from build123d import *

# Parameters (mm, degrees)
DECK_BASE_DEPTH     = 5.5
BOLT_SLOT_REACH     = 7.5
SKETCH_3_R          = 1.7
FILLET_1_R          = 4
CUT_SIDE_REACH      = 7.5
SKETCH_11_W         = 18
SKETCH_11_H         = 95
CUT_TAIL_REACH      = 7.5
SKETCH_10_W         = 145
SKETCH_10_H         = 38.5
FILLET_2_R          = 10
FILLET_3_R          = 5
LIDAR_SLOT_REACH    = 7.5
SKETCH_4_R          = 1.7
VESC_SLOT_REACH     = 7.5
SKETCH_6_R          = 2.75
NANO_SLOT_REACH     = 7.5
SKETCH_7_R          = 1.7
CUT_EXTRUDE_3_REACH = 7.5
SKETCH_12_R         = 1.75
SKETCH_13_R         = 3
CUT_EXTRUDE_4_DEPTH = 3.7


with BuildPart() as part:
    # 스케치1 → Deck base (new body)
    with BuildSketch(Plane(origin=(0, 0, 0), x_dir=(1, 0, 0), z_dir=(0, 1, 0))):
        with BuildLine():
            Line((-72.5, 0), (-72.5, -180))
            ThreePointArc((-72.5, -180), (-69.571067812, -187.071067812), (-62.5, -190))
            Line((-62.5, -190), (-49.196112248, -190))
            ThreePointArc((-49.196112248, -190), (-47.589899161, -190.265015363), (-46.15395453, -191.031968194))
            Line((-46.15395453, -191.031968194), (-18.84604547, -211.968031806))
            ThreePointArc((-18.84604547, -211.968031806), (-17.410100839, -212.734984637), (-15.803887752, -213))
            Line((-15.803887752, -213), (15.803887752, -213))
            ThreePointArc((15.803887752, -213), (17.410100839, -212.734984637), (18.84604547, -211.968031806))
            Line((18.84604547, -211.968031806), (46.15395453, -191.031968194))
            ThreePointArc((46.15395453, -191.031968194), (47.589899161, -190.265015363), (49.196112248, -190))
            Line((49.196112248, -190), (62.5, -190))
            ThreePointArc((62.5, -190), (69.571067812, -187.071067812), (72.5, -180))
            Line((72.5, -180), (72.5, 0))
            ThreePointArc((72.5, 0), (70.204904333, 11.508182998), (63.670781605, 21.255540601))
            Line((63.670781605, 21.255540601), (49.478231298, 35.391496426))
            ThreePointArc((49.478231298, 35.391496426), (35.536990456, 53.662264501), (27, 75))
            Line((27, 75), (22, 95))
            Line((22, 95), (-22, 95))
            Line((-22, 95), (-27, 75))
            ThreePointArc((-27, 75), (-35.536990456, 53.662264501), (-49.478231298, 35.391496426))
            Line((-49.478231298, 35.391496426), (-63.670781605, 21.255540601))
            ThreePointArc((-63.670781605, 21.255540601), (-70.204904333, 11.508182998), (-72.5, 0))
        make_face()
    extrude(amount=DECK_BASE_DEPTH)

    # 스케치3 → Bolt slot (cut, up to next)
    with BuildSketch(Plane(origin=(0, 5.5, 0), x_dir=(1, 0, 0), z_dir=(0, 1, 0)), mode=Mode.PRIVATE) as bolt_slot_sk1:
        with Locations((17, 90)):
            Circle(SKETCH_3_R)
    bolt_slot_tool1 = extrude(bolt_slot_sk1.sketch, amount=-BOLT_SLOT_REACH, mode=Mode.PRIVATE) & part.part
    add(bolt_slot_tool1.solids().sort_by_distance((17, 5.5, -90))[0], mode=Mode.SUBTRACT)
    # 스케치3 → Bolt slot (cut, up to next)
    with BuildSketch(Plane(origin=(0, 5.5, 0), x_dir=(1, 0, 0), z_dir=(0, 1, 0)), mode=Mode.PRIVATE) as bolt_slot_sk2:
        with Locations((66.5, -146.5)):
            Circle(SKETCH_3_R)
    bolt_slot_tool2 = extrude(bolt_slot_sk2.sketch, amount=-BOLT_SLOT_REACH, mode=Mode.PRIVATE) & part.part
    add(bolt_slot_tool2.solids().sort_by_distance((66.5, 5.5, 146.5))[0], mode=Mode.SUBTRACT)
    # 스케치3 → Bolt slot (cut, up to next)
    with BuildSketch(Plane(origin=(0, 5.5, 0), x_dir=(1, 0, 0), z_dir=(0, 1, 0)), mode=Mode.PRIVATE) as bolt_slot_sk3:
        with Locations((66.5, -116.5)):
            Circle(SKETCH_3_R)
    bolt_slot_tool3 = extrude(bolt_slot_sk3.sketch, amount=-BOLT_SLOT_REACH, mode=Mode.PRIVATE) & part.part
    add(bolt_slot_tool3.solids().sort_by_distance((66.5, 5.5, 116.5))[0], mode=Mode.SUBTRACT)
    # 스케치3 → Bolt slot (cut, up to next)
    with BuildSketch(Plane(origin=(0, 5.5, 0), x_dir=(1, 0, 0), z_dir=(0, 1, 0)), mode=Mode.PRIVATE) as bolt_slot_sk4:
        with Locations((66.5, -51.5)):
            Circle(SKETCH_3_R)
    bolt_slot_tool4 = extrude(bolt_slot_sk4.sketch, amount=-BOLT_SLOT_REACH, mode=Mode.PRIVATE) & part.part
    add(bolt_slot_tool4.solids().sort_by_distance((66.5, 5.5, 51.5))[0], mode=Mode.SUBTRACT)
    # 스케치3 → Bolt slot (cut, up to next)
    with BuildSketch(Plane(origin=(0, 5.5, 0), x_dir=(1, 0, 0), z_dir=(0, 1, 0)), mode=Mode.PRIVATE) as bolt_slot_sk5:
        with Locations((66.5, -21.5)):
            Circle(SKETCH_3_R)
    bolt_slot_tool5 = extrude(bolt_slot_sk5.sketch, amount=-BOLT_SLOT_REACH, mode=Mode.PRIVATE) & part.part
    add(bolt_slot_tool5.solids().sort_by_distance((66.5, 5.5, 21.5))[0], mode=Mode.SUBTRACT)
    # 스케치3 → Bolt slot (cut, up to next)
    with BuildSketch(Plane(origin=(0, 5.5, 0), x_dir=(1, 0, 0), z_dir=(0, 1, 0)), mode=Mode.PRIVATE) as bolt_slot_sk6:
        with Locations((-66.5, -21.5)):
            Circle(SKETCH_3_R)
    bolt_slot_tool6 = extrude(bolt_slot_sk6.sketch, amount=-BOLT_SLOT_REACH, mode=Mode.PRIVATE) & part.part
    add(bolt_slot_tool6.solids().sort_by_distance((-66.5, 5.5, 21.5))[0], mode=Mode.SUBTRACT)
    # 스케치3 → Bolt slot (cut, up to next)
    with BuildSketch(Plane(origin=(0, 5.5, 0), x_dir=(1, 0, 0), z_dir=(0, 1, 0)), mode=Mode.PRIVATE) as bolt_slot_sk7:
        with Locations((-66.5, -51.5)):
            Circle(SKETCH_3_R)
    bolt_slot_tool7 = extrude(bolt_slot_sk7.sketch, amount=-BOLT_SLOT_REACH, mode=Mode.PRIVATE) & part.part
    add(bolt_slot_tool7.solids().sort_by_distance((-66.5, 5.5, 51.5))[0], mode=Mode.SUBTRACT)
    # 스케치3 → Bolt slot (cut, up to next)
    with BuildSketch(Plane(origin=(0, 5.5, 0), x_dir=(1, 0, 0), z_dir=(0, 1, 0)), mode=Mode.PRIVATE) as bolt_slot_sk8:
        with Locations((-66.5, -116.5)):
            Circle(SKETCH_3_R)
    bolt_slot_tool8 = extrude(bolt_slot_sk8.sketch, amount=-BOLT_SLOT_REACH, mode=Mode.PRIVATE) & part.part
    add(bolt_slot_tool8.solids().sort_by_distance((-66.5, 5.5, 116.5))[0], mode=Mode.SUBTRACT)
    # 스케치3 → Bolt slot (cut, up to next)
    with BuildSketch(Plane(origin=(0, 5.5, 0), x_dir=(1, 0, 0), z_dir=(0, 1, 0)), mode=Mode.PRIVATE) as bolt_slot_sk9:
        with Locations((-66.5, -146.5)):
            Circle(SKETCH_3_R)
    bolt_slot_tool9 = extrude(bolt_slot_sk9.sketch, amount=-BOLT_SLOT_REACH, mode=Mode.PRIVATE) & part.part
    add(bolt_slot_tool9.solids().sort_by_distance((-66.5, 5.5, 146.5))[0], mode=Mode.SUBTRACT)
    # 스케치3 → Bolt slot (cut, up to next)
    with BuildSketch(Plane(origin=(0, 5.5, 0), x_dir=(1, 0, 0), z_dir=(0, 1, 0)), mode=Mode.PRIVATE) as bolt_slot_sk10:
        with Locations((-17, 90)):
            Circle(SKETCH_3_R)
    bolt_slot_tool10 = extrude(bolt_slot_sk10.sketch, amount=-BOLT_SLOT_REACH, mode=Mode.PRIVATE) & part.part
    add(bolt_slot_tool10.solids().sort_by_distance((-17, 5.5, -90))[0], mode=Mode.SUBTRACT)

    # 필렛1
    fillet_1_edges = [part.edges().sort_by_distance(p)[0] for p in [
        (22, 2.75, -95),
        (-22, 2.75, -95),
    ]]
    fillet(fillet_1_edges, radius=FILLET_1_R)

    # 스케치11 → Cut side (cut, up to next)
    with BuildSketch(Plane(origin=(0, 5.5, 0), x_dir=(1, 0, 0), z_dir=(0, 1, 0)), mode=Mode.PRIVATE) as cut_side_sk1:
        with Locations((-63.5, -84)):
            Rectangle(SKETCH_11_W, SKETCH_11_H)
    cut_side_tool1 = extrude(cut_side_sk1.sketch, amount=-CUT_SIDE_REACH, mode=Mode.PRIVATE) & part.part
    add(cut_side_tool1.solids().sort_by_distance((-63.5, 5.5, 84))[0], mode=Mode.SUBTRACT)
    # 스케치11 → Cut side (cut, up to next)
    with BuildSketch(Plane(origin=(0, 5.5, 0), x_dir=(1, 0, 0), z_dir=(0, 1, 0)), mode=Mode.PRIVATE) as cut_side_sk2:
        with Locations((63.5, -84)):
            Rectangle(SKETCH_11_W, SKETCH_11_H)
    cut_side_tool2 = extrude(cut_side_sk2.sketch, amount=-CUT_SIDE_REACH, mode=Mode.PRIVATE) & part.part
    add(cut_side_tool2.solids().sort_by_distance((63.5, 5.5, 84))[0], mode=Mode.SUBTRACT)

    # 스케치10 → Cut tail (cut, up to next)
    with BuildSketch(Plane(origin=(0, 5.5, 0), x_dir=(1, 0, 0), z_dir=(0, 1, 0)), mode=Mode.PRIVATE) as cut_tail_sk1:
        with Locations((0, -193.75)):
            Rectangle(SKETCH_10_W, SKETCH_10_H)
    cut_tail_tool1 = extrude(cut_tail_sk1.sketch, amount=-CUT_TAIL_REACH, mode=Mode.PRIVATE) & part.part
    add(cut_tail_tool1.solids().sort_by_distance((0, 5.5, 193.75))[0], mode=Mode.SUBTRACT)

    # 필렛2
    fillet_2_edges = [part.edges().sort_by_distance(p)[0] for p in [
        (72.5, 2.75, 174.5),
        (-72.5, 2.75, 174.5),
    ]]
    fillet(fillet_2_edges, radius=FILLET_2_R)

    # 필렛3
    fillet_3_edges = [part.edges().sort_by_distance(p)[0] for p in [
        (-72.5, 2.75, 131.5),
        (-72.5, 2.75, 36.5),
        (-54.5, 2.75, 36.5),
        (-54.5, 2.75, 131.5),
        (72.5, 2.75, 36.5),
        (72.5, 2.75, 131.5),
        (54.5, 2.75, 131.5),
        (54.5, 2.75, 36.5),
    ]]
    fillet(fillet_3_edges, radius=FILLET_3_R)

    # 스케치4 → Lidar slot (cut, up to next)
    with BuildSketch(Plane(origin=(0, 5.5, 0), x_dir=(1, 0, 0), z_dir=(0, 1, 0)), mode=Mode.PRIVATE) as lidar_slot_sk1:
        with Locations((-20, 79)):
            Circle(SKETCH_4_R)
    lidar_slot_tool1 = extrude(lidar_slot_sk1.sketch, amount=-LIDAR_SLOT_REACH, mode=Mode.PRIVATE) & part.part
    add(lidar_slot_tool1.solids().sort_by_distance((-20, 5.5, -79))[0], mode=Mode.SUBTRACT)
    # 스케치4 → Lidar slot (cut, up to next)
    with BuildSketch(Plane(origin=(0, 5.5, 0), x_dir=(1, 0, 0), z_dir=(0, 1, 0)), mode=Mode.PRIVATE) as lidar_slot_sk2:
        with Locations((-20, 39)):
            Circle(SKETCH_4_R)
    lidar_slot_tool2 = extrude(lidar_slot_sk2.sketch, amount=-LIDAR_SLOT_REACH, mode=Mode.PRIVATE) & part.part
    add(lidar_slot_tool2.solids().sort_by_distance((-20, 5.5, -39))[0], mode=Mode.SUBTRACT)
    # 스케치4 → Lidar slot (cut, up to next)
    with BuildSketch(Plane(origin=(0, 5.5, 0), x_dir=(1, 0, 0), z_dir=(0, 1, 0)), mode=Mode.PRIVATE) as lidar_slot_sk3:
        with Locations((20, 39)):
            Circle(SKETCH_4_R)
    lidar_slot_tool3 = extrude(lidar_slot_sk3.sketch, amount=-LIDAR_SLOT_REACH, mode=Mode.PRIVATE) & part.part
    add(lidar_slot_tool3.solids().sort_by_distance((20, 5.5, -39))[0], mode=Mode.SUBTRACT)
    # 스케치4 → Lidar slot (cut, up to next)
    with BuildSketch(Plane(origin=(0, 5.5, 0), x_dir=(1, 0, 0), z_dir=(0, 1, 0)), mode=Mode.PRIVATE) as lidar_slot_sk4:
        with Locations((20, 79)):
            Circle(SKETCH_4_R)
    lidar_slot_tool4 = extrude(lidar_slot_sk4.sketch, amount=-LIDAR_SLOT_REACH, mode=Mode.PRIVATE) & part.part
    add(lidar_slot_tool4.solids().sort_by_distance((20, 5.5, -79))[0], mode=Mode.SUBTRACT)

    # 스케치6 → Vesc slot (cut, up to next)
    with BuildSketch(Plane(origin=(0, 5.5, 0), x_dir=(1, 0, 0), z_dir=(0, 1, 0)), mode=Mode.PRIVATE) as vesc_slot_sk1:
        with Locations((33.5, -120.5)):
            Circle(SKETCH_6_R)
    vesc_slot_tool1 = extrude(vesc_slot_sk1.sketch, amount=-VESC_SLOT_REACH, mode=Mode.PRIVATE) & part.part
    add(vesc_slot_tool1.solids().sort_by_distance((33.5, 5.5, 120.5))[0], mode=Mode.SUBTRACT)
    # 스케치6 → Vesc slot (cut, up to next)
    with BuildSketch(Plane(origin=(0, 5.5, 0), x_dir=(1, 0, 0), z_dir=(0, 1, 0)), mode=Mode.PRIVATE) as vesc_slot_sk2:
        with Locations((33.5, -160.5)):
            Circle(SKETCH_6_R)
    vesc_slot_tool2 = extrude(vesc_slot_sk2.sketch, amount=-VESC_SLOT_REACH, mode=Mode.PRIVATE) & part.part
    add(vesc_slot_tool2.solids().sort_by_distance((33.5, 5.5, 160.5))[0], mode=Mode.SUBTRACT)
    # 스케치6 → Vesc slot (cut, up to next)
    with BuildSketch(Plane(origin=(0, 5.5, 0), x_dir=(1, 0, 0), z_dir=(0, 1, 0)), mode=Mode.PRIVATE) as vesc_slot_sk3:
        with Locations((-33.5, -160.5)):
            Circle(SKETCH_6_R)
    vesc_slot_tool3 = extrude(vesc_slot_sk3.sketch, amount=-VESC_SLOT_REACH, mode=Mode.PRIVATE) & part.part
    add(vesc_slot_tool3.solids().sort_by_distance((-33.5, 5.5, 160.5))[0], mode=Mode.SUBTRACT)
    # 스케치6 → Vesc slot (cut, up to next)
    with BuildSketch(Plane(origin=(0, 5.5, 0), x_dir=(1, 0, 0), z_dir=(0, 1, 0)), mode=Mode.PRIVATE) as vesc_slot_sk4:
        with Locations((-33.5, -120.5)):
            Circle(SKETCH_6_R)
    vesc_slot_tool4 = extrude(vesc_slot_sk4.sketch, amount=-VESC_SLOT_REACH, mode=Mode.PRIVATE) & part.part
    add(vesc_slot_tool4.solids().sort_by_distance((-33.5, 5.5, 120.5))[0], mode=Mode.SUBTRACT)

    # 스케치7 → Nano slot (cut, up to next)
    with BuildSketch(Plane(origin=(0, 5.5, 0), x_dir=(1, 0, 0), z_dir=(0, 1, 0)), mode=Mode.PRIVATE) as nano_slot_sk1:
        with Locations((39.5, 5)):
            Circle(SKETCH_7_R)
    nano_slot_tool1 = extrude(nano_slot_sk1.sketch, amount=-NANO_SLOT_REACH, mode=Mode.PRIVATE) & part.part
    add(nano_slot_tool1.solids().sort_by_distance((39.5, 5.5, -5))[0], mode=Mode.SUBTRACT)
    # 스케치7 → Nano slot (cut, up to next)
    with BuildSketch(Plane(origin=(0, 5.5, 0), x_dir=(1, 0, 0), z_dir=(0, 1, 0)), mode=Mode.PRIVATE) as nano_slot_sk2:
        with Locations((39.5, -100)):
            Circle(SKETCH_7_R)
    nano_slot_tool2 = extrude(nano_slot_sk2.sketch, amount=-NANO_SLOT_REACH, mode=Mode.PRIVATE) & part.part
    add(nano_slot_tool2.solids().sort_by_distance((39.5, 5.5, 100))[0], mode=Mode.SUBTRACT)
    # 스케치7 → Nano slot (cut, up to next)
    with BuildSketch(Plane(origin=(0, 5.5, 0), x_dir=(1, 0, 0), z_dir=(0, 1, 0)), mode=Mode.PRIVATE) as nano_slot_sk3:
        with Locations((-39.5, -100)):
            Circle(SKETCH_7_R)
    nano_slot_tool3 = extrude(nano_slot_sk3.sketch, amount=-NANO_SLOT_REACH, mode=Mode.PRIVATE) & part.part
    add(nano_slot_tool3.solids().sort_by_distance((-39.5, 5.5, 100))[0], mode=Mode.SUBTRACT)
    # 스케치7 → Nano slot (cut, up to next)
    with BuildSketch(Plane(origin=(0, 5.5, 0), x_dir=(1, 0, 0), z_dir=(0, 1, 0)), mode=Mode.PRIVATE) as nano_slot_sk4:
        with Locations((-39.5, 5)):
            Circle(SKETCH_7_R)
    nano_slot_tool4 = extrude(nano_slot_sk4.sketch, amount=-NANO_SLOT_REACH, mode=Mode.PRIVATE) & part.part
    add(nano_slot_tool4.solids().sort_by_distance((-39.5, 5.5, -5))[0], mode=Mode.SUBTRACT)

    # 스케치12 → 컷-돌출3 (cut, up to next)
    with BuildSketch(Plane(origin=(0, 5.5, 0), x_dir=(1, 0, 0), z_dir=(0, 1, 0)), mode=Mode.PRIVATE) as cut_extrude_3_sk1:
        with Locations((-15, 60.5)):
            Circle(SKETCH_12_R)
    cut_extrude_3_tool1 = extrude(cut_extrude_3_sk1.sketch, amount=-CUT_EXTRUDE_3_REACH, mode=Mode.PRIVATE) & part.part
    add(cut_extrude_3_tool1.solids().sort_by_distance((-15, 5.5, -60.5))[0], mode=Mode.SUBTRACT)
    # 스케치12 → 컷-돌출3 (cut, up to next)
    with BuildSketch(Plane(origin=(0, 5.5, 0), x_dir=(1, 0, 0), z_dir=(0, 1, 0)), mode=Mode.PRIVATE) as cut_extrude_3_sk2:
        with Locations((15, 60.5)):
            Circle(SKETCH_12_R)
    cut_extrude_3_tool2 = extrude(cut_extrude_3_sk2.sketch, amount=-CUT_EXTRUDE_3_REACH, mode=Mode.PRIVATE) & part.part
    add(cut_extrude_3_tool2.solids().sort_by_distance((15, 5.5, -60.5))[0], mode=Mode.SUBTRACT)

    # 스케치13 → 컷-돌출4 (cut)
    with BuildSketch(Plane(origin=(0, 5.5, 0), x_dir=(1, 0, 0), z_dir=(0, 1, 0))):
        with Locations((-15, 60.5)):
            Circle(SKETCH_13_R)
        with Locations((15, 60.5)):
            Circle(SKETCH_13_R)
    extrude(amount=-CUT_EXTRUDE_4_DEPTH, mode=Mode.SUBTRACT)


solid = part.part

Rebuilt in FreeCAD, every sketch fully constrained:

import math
import FreeCAD as App
import Part
import Sketcher

V = App.Vector
Q = App.Units.Quantity


def edges_at(feature, points):
    """Names of the edges that pass closest to the given points."""
    edges = feature.Shape.Edges
    near = lambda p: min(range(len(edges)), key=lambda i: edges[i].distToShape(Part.Vertex(*p))[0])
    return sorted({f"Edge{near(p) + 1}" for p in points})


def add_polygon(sketch, points):
    """Adds a closed chain of lines whose ends are joined by coincident constraints."""
    first, n = sketch.GeometryCount, len(points)
    for a, b in zip(points, points[1:] + points[:1]):
        sketch.addGeometry(Part.LineSegment(App.Vector(*a, 0), App.Vector(*b, 0)), False)
    for i in range(n):
        sketch.addConstraint(Sketcher.Constraint("Coincident", first + i, 2, first + (i + 1) % n, 1))

doc = App.newDocument("Part")
body = doc.addObject("PartDesign::Body", "Body")

sketch1 = body.newObject("Sketcher::SketchObject", "Sketch")
sketch1.AttachmentSupport = (doc.getObject("XZ_Plane"), [""])
sketch1.MapMode = "FlatFace"
sketch1.addGeometry([
    Part.LineSegment(V(-72.5, 0, 0), V(-72.5, 180, 0)),
    Part.ArcOfCircle(Part.Circle(V(-62.5, 180, 0), V(0, 0, 1), 10), math.radians(90), math.radians(180)),
    Part.LineSegment(V(-62.5, 190, 0), V(-49.2, 190, 0)),
    Part.ArcOfCircle(Part.Circle(V(-49.2, 195, 0), V(0, 0, 1), 5), math.radians(-90), math.radians(-53)),
    Part.LineSegment(V(-46.2, 191, 0), V(-18.8, 212, 0)),
    Part.ArcOfCircle(Part.Circle(V(-15.8, 208, 0), V(0, 0, 1), 5), math.radians(90), math.radians(127)),
    Part.LineSegment(V(-15.8, 213, 0), V(15.8, 213, 0)),
    Part.ArcOfCircle(Part.Circle(V(15.8, 208, 0), V(0, 0, 1), 5), math.radians(53), math.radians(90)),
    Part.LineSegment(V(18.8, 212, 0), V(46.2, 191, 0)),
    Part.ArcOfCircle(Part.Circle(V(49.2, 195, 0), V(0, 0, 1), 5), math.radians(-127), math.radians(-90)),
    Part.LineSegment(V(49.2, 190, 0), V(62.5, 190, 0)),
    Part.ArcOfCircle(Part.Circle(V(62.5, 180, 0), V(0, 0, 1), 10), math.radians(0), math.radians(90)),
    Part.LineSegment(V(72.5, 180, 0), V(72.5, 0, 0)),
    Part.ArcOfCircle(Part.Circle(V(42.5, 0, 0), V(0, 0, 1), 30), math.radians(-45), math.radians(0)),
    Part.LineSegment(V(63.7, -21.3, 0), V(49.5, -35.4, 0)),
    Part.ArcOfCircle(Part.Circle(V(109.5, -95.6, 0), V(0, 0, 1), 85), math.radians(135), math.radians(166)),
    Part.LineSegment(V(27, -75, 0), V(22, -95, 0)),
    Part.LineSegment(V(22, -95, 0), V(-22, -95, 0)),
    Part.LineSegment(V(-22, -95, 0), V(-27, -75, 0)),
    Part.ArcOfCircle(Part.Circle(V(-109.5, -95.6, 0), V(0, 0, 1), 85), math.radians(14), math.radians(45)),
    Part.LineSegment(V(-49.5, -35.4, 0), V(-63.7, -21.3, 0)),
    Part.ArcOfCircle(Part.Circle(V(-42.5, 0, 0), V(0, 0, 1), 30), math.radians(180), math.radians(225)),
], False)
sketch1.addConstraint([
    Sketcher.Constraint("Tangent", 0, 2, 1, 2),
    Sketcher.Constraint("Tangent", 1, 1, 2, 1),
    Sketcher.Constraint("Tangent", 2, 2, 3, 1),
    Sketcher.Constraint("Tangent", 3, 2, 4, 1),
    Sketcher.Constraint("Tangent", 4, 2, 5, 2),
    Sketcher.Constraint("Tangent", 5, 1, 6, 1),
    Sketcher.Constraint("Tangent", 6, 2, 7, 2),
    Sketcher.Constraint("Tangent", 7, 1, 8, 1),
    Sketcher.Constraint("Tangent", 8, 2, 9, 1),
    Sketcher.Constraint("Tangent", 9, 2, 10, 1),
    Sketcher.Constraint("Tangent", 10, 2, 11, 2),
    Sketcher.Constraint("Tangent", 11, 1, 12, 1),
    Sketcher.Constraint("Tangent", 12, 2, 13, 2),
    Sketcher.Constraint("Tangent", 13, 1, 14, 1),
    Sketcher.Constraint("Tangent", 14, 2, 15, 1),
    Sketcher.Constraint("Tangent", 15, 2, 16, 1),
    Sketcher.Constraint("Coincident", 16, 2, 17, 1),
    Sketcher.Constraint("Coincident", 17, 2, 18, 1),
    Sketcher.Constraint("Tangent", 18, 2, 19, 1),
    Sketcher.Constraint("Tangent", 19, 2, 20, 1),
    Sketcher.Constraint("Tangent", 20, 2, 21, 2),
    Sketcher.Constraint("Tangent", 21, 1, 0, 1),
    Sketcher.Constraint("Vertical", 0),
    Sketcher.Constraint("Horizontal", 2),
    Sketcher.Constraint("Horizontal", 6),
    Sketcher.Constraint("Horizontal", 10),
    Sketcher.Constraint("Vertical", 12),
    Sketcher.Constraint("Horizontal", 17),
    Sketcher.Constraint("Equal", 3, 5),
    Sketcher.Constraint("Equal", 5, 7),
    Sketcher.Constraint("Equal", 7, 9),
    Sketcher.Constraint("Equal", 1, 11),
    Sketcher.Constraint("Equal", 15, 19),
    Sketcher.Constraint("Equal", 13, 21),
    Sketcher.Constraint("Symmetric", 13, 3, 21, 3, -1, 1),
    Sketcher.Constraint("Symmetric", 3, 3, 9, 3, -2),
    Sketcher.Constraint("Symmetric", 15, 3, 19, 3, -2),
    Sketcher.Constraint("PointOnObject", 13, 3, -1),
    Sketcher.Constraint("Horizontal", 4, 2, 7, 1),
    Sketcher.Constraint("Horizontal", 15, 2, 18, 2),
    Sketcher.Constraint("Radius", 1, Q("10 mm")),
    Sketcher.Constraint("Radius", 3, Q("5 mm")),
    Sketcher.Constraint("Radius", 13, Q("30 mm")),
    Sketcher.Constraint("Radius", 15, Q("85 mm")),
    Sketcher.Constraint("DistanceX", 17, 2, 17, 1, Q("44 mm")),
    Sketcher.Constraint("DistanceY", 0, 1, 0, 2, Q("180 mm")),
    Sketcher.Constraint("DistanceY", -1, 1, 5, 3, Q("208 mm")),
    Sketcher.Constraint("DistanceX", -1, 1, 15, 2, Q("27 mm")),
    Sketcher.Constraint("DistanceY", 15, 2, -1, 1, Q("75 mm")),
    Sketcher.Constraint("DistanceY", 16, 2, -1, 1, Q("95 mm")),
    Sketcher.Constraint("DistanceX", 3, 3, 7, 3, Q("65 mm")),
    Sketcher.Constraint("DistanceX", 1, 3, 11, 3, Q("125 mm")),
    Sketcher.Constraint("DistanceX", 9, 3, 15, 3, Q("60.266 mm")),
])
pad1 = body.newObject("PartDesign::Pad", "Pad")
pad1.Profile = sketch1
pad1.Length = 5.5
pad1.Reversed = True

sketch2 = body.newObject("Sketcher::SketchObject", "Sketch001")
sketch2.AttachmentSupport = (doc.getObject("XZ_Plane"), [""])
sketch2.MapMode = "FlatFace"
sketch2.AttachmentOffset = App.Placement(V(0, 0, -5.5), App.Rotation())
sketch2.addGeometry(Part.Circle(V(17, -90, 0), V(0, 0, 1), 1.7), False)
sketch2.addConstraint([
    Sketcher.Constraint("Diameter", 0, Q("3.4 mm")),
    Sketcher.Constraint("DistanceX", -1, 1, 0, 3, Q("17 mm")),
    Sketcher.Constraint("DistanceY", 0, 3, -1, 1, Q("90 mm")),
])
pocket1 = body.newObject("PartDesign::Pocket", "Pocket")
pocket1.Profile = sketch2
pocket1.Type = "UpToFirst"
pocket1.Reversed = True

sketch3 = body.newObject("Sketcher::SketchObject", "Sketch002")
sketch3.AttachmentSupport = (doc.getObject("XZ_Plane"), [""])
sketch3.MapMode = "FlatFace"
sketch3.AttachmentOffset = App.Placement(V(0, 0, -5.5), App.Rotation())
sketch3.addGeometry(Part.Circle(V(66.5, 146.5, 0), V(0, 0, 1), 1.7), False)
sketch3.addConstraint([
    Sketcher.Constraint("Diameter", 0, Q("3.4 mm")),
    Sketcher.Constraint("DistanceX", -1, 1, 0, 3, Q("66.5 mm")),
    Sketcher.Constraint("DistanceY", -1, 1, 0, 3, Q("146.5 mm")),
])
pocket2 = body.newObject("PartDesign::Pocket", "Pocket001")
pocket2.Profile = sketch3
pocket2.Type = "UpToFirst"
pocket2.Reversed = True

sketch4 = body.newObject("Sketcher::SketchObject", "Sketch003")
sketch4.AttachmentSupport = (doc.getObject("XZ_Plane"), [""])
sketch4.MapMode = "FlatFace"
sketch4.AttachmentOffset = App.Placement(V(0, 0, -5.5), App.Rotation())
sketch4.addGeometry(Part.Circle(V(66.5, 116.5, 0), V(0, 0, 1), 1.7), False)
sketch4.addConstraint([
    Sketcher.Constraint("Diameter", 0, Q("3.4 mm")),
    Sketcher.Constraint("DistanceX", -1, 1, 0, 3, Q("66.5 mm")),
    Sketcher.Constraint("DistanceY", -1, 1, 0, 3, Q("116.5 mm")),
])
pocket3 = body.newObject("PartDesign::Pocket", "Pocket002")
pocket3.Profile = sketch4
pocket3.Type = "UpToFirst"
pocket3.Reversed = True

sketch5 = body.newObject("Sketcher::SketchObject", "Sketch004")
sketch5.AttachmentSupport = (doc.getObject("XZ_Plane"), [""])
sketch5.MapMode = "FlatFace"
sketch5.AttachmentOffset = App.Placement(V(0, 0, -5.5), App.Rotation())
sketch5.addGeometry(Part.Circle(V(66.5, 51.5, 0), V(0, 0, 1), 1.7), False)
sketch5.addConstraint([
    Sketcher.Constraint("Diameter", 0, Q("3.4 mm")),
    Sketcher.Constraint("DistanceX", -1, 1, 0, 3, Q("66.5 mm")),
    Sketcher.Constraint("DistanceY", -1, 1, 0, 3, Q("51.5 mm")),
])
pocket4 = body.newObject("PartDesign::Pocket", "Pocket003")
pocket4.Profile = sketch5
pocket4.Type = "UpToFirst"
pocket4.Reversed = True

sketch6 = body.newObject("Sketcher::SketchObject", "Sketch005")
sketch6.AttachmentSupport = (doc.getObject("XZ_Plane"), [""])
sketch6.MapMode = "FlatFace"
sketch6.AttachmentOffset = App.Placement(V(0, 0, -5.5), App.Rotation())
sketch6.addGeometry(Part.Circle(V(66.5, 21.5, 0), V(0, 0, 1), 1.7), False)
sketch6.addConstraint([
    Sketcher.Constraint("Diameter", 0, Q("3.4 mm")),
    Sketcher.Constraint("DistanceX", -1, 1, 0, 3, Q("66.5 mm")),
    Sketcher.Constraint("DistanceY", -1, 1, 0, 3, Q("21.5 mm")),
])
pocket5 = body.newObject("PartDesign::Pocket", "Pocket004")
pocket5.Profile = sketch6
pocket5.Type = "UpToFirst"
pocket5.Reversed = True

sketch7 = body.newObject("Sketcher::SketchObject", "Sketch006")
sketch7.AttachmentSupport = (doc.getObject("XZ_Plane"), [""])
sketch7.MapMode = "FlatFace"
sketch7.AttachmentOffset = App.Placement(V(0, 0, -5.5), App.Rotation())
sketch7.addGeometry(Part.Circle(V(-66.5, 21.5, 0), V(0, 0, 1), 1.7), False)
sketch7.addConstraint([
    Sketcher.Constraint("Diameter", 0, Q("3.4 mm")),
    Sketcher.Constraint("DistanceX", 0, 3, -1, 1, Q("66.5 mm")),
    Sketcher.Constraint("DistanceY", -1, 1, 0, 3, Q("21.5 mm")),
])
pocket6 = body.newObject("PartDesign::Pocket", "Pocket005")
pocket6.Profile = sketch7
pocket6.Type = "UpToFirst"
pocket6.Reversed = True

sketch8 = body.newObject("Sketcher::SketchObject", "Sketch007")
sketch8.AttachmentSupport = (doc.getObject("XZ_Plane"), [""])
sketch8.MapMode = "FlatFace"
sketch8.AttachmentOffset = App.Placement(V(0, 0, -5.5), App.Rotation())
sketch8.addGeometry(Part.Circle(V(-66.5, 51.5, 0), V(0, 0, 1), 1.7), False)
sketch8.addConstraint([
    Sketcher.Constraint("Diameter", 0, Q("3.4 mm")),
    Sketcher.Constraint("DistanceX", 0, 3, -1, 1, Q("66.5 mm")),
    Sketcher.Constraint("DistanceY", -1, 1, 0, 3, Q("51.5 mm")),
])
pocket7 = body.newObject("PartDesign::Pocket", "Pocket006")
pocket7.Profile = sketch8
pocket7.Type = "UpToFirst"
pocket7.Reversed = True

sketch9 = body.newObject("Sketcher::SketchObject", "Sketch008")
sketch9.AttachmentSupport = (doc.getObject("XZ_Plane"), [""])
sketch9.MapMode = "FlatFace"
sketch9.AttachmentOffset = App.Placement(V(0, 0, -5.5), App.Rotation())
sketch9.addGeometry(Part.Circle(V(-66.5, 116.5, 0), V(0, 0, 1), 1.7), False)
sketch9.addConstraint([
    Sketcher.Constraint("Diameter", 0, Q("3.4 mm")),
    Sketcher.Constraint("DistanceX", 0, 3, -1, 1, Q("66.5 mm")),
    Sketcher.Constraint("DistanceY", -1, 1, 0, 3, Q("116.5 mm")),
])
pocket8 = body.newObject("PartDesign::Pocket", "Pocket007")
pocket8.Profile = sketch9
pocket8.Type = "UpToFirst"
pocket8.Reversed = True

sketch10 = body.newObject("Sketcher::SketchObject", "Sketch009")
sketch10.AttachmentSupport = (doc.getObject("XZ_Plane"), [""])
sketch10.MapMode = "FlatFace"
sketch10.AttachmentOffset = App.Placement(V(0, 0, -5.5), App.Rotation())
sketch10.addGeometry(Part.Circle(V(-66.5, 146.5, 0), V(0, 0, 1), 1.7), False)
sketch10.addConstraint([
    Sketcher.Constraint("Diameter", 0, Q("3.4 mm")),
    Sketcher.Constraint("DistanceX", 0, 3, -1, 1, Q("66.5 mm")),
    Sketcher.Constraint("DistanceY", -1, 1, 0, 3, Q("146.5 mm")),
])
pocket9 = body.newObject("PartDesign::Pocket", "Pocket008")
pocket9.Profile = sketch10
pocket9.Type = "UpToFirst"
pocket9.Reversed = True

sketch11 = body.newObject("Sketcher::SketchObject", "Sketch010")
sketch11.AttachmentSupport = (doc.getObject("XZ_Plane"), [""])
sketch11.MapMode = "FlatFace"
sketch11.AttachmentOffset = App.Placement(V(0, 0, -5.5), App.Rotation())
sketch11.addGeometry(Part.Circle(V(-17, -90, 0), V(0, 0, 1), 1.7), False)
sketch11.addConstraint([
    Sketcher.Constraint("Diameter", 0, Q("3.4 mm")),
    Sketcher.Constraint("DistanceX", 0, 3, -1, 1, Q("17 mm")),
    Sketcher.Constraint("DistanceY", 0, 3, -1, 1, Q("90 mm")),
])
pocket10 = body.newObject("PartDesign::Pocket", "Pocket009")
pocket10.Profile = sketch11
pocket10.Type = "UpToFirst"
pocket10.Reversed = True
doc.recompute()

fillet = body.newObject("PartDesign::Fillet", "Fillet")
fillet.Base = (pocket10, edges_at(pocket10, [(22, 2.75, -95), (-22, 2.75, -95)]))
fillet.Radius = 4

sketch12 = body.newObject("Sketcher::SketchObject", "Sketch011")
sketch12.AttachmentSupport = (doc.getObject("XZ_Plane"), [""])
sketch12.MapMode = "FlatFace"
sketch12.AttachmentOffset = App.Placement(V(0, 0, -5.5), App.Rotation())
add_polygon(sketch12, [(-72, 36), (-72, 132), (-54, 132), (-54, 36)])
sketch12.addConstraint([
    Sketcher.Constraint("Vertical", 0),
    Sketcher.Constraint("Horizontal", 1),
    Sketcher.Constraint("Vertical", 2),
    Sketcher.Constraint("Horizontal", 3),
    Sketcher.Constraint("DistanceX", 1, 1, 1, 2, Q("18 mm")),
    Sketcher.Constraint("DistanceY", 0, 1, 0, 2, Q("95 mm")),
    Sketcher.Constraint("DistanceX", 0, 2, -1, 1, Q("72.5 mm")),
    Sketcher.Constraint("DistanceY", -1, 1, 0, 2, Q("131.5 mm")),
])
pocket11 = body.newObject("PartDesign::Pocket", "Pocket010")
pocket11.Profile = sketch12
pocket11.Type = "UpToFirst"
pocket11.Reversed = True

sketch13 = body.newObject("Sketcher::SketchObject", "Sketch012")
sketch13.AttachmentSupport = (doc.getObject("XZ_Plane"), [""])
sketch13.MapMode = "FlatFace"
sketch13.AttachmentOffset = App.Placement(V(0, 0, -5.5), App.Rotation())
add_polygon(sketch13, [(54, 36), (54, 132), (72, 132), (72, 36)])
sketch13.addConstraint([
    Sketcher.Constraint("Vertical", 0),
    Sketcher.Constraint("Horizontal", 1),
    Sketcher.Constraint("Vertical", 2),
    Sketcher.Constraint("Horizontal", 3),
    Sketcher.Constraint("DistanceX", 1, 1, 1, 2, Q("18 mm")),
    Sketcher.Constraint("DistanceY", 0, 1, 0, 2, Q("95 mm")),
    Sketcher.Constraint("DistanceX", -1, 1, 0, 2, Q("54.5 mm")),
    Sketcher.Constraint("DistanceY", -1, 1, 0, 2, Q("131.5 mm")),
])
pocket12 = body.newObject("PartDesign::Pocket", "Pocket011")
pocket12.Profile = sketch13
pocket12.Type = "UpToFirst"
pocket12.Reversed = True

sketch14 = body.newObject("Sketcher::SketchObject", "Sketch013")
sketch14.AttachmentSupport = (doc.getObject("XZ_Plane"), [""])
sketch14.MapMode = "FlatFace"
sketch14.AttachmentOffset = App.Placement(V(0, 0, -5.5), App.Rotation())
add_polygon(sketch14, [(-72, 174), (-72, 213), (72, 213), (72, 174)])
sketch14.addConstraint([
    Sketcher.Constraint("Vertical", 0),
    Sketcher.Constraint("Horizontal", 1),
    Sketcher.Constraint("Vertical", 2),
    Sketcher.Constraint("Horizontal", 3),
    Sketcher.Constraint("DistanceX", 1, 1, 1, 2, Q("145 mm")),
    Sketcher.Constraint("DistanceY", 0, 1, 0, 2, Q("38.5 mm")),
    Sketcher.Constraint("DistanceY", -1, 1, 0, 2, Q("213 mm")),
    Sketcher.Constraint("DistanceX", 0, 2, -1, 1, Q("72.5 mm")),
])
pocket13 = body.newObject("PartDesign::Pocket", "Pocket012")
pocket13.Profile = sketch14
pocket13.Type = "UpToFirst"
pocket13.Reversed = True
doc.recompute()

fillet2 = body.newObject("PartDesign::Fillet", "Fillet001")
fillet2.Base = (pocket13, edges_at(pocket13, [(72.5, 2.75, 174.5), (-72.5, 2.75, 174.5)]))
fillet2.Radius = 10
doc.recompute()

fillet3 = body.newObject("PartDesign::Fillet", "Fillet002")
fillet3.Base = (fillet2, edges_at(fillet2, [
    (-72.5, 2.75, 131.5),
    (-72.5, 2.75, 36.5),
    (-54.5, 2.75, 36.5),
    (-54.5, 2.75, 131.5),
    (72.5, 2.75, 36.5),
    (72.5, 2.75, 131.5),
    (54.5, 2.75, 131.5),
    (54.5, 2.75, 36.5),
]))
fillet3.Radius = 5

sketch15 = body.newObject("Sketcher::SketchObject", "Sketch014")
sketch15.AttachmentSupport = (doc.getObject("XZ_Plane"), [""])
sketch15.MapMode = "FlatFace"
sketch15.AttachmentOffset = App.Placement(V(0, 0, -5.5), App.Rotation())
sketch15.addGeometry(Part.Circle(V(-20, -79, 0), V(0, 0, 1), 1.7), False)
sketch15.addConstraint([
    Sketcher.Constraint("Diameter", 0, Q("3.4 mm")),
    Sketcher.Constraint("DistanceX", 0, 3, -1, 1, Q("20 mm")),
    Sketcher.Constraint("DistanceY", 0, 3, -1, 1, Q("79 mm")),
])
pocket14 = body.newObject("PartDesign::Pocket", "Pocket013")
pocket14.Profile = sketch15
pocket14.Type = "UpToFirst"
pocket14.Reversed = True

sketch16 = body.newObject("Sketcher::SketchObject", "Sketch015")
sketch16.AttachmentSupport = (doc.getObject("XZ_Plane"), [""])
sketch16.MapMode = "FlatFace"
sketch16.AttachmentOffset = App.Placement(V(0, 0, -5.5), App.Rotation())
sketch16.addGeometry(Part.Circle(V(-20, -39, 0), V(0, 0, 1), 1.7), False)
sketch16.addConstraint([
    Sketcher.Constraint("Diameter", 0, Q("3.4 mm")),
    Sketcher.Constraint("DistanceX", 0, 3, -1, 1, Q("20 mm")),
    Sketcher.Constraint("DistanceY", 0, 3, -1, 1, Q("39 mm")),
])
pocket15 = body.newObject("PartDesign::Pocket", "Pocket014")
pocket15.Profile = sketch16
pocket15.Type = "UpToFirst"
pocket15.Reversed = True

sketch17 = body.newObject("Sketcher::SketchObject", "Sketch016")
sketch17.AttachmentSupport = (doc.getObject("XZ_Plane"), [""])
sketch17.MapMode = "FlatFace"
sketch17.AttachmentOffset = App.Placement(V(0, 0, -5.5), App.Rotation())
sketch17.addGeometry(Part.Circle(V(20, -39, 0), V(0, 0, 1), 1.7), False)
sketch17.addConstraint([
    Sketcher.Constraint("Diameter", 0, Q("3.4 mm")),
    Sketcher.Constraint("DistanceX", -1, 1, 0, 3, Q("20 mm")),
    Sketcher.Constraint("DistanceY", 0, 3, -1, 1, Q("39 mm")),
])
pocket16 = body.newObject("PartDesign::Pocket", "Pocket015")
pocket16.Profile = sketch17
pocket16.Type = "UpToFirst"
pocket16.Reversed = True

sketch18 = body.newObject("Sketcher::SketchObject", "Sketch017")
sketch18.AttachmentSupport = (doc.getObject("XZ_Plane"), [""])
sketch18.MapMode = "FlatFace"
sketch18.AttachmentOffset = App.Placement(V(0, 0, -5.5), App.Rotation())
sketch18.addGeometry(Part.Circle(V(20, -79, 0), V(0, 0, 1), 1.7), False)
sketch18.addConstraint([
    Sketcher.Constraint("Diameter", 0, Q("3.4 mm")),
    Sketcher.Constraint("DistanceX", -1, 1, 0, 3, Q("20 mm")),
    Sketcher.Constraint("DistanceY", 0, 3, -1, 1, Q("79 mm")),
])
pocket17 = body.newObject("PartDesign::Pocket", "Pocket016")
pocket17.Profile = sketch18
pocket17.Type = "UpToFirst"
pocket17.Reversed = True

sketch19 = body.newObject("Sketcher::SketchObject", "Sketch018")
sketch19.AttachmentSupport = (doc.getObject("XZ_Plane"), [""])
sketch19.MapMode = "FlatFace"
sketch19.AttachmentOffset = App.Placement(V(0, 0, -5.5), App.Rotation())
sketch19.addGeometry(Part.Circle(V(33.5, 120.5, 0), V(0, 0, 1), 2.8), False)
sketch19.addConstraint([
    Sketcher.Constraint("Diameter", 0, Q("5.5 mm")),
    Sketcher.Constraint("DistanceX", -1, 1, 0, 3, Q("33.5 mm")),
    Sketcher.Constraint("DistanceY", -1, 1, 0, 3, Q("120.5 mm")),
])
pocket18 = body.newObject("PartDesign::Pocket", "Pocket017")
pocket18.Profile = sketch19
pocket18.Type = "UpToFirst"
pocket18.Reversed = True

sketch20 = body.newObject("Sketcher::SketchObject", "Sketch019")
sketch20.AttachmentSupport = (doc.getObject("XZ_Plane"), [""])
sketch20.MapMode = "FlatFace"
sketch20.AttachmentOffset = App.Placement(V(0, 0, -5.5), App.Rotation())
sketch20.addGeometry(Part.Circle(V(33.5, 160.5, 0), V(0, 0, 1), 2.8), False)
sketch20.addConstraint([
    Sketcher.Constraint("Diameter", 0, Q("5.5 mm")),
    Sketcher.Constraint("DistanceX", -1, 1, 0, 3, Q("33.5 mm")),
    Sketcher.Constraint("DistanceY", -1, 1, 0, 3, Q("160.5 mm")),
])
pocket19 = body.newObject("PartDesign::Pocket", "Pocket018")
pocket19.Profile = sketch20
pocket19.Type = "UpToFirst"
pocket19.Reversed = True

sketch21 = body.newObject("Sketcher::SketchObject", "Sketch020")
sketch21.AttachmentSupport = (doc.getObject("XZ_Plane"), [""])
sketch21.MapMode = "FlatFace"
sketch21.AttachmentOffset = App.Placement(V(0, 0, -5.5), App.Rotation())
sketch21.addGeometry(Part.Circle(V(-33.5, 160.5, 0), V(0, 0, 1), 2.8), False)
sketch21.addConstraint([
    Sketcher.Constraint("Diameter", 0, Q("5.5 mm")),
    Sketcher.Constraint("DistanceX", 0, 3, -1, 1, Q("33.5 mm")),
    Sketcher.Constraint("DistanceY", -1, 1, 0, 3, Q("160.5 mm")),
])
pocket20 = body.newObject("PartDesign::Pocket", "Pocket019")
pocket20.Profile = sketch21
pocket20.Type = "UpToFirst"
pocket20.Reversed = True

sketch22 = body.newObject("Sketcher::SketchObject", "Sketch021")
sketch22.AttachmentSupport = (doc.getObject("XZ_Plane"), [""])
sketch22.MapMode = "FlatFace"
sketch22.AttachmentOffset = App.Placement(V(0, 0, -5.5), App.Rotation())
sketch22.addGeometry(Part.Circle(V(-33.5, 120.5, 0), V(0, 0, 1), 2.8), False)
sketch22.addConstraint([
    Sketcher.Constraint("Diameter", 0, Q("5.5 mm")),
    Sketcher.Constraint("DistanceX", 0, 3, -1, 1, Q("33.5 mm")),
    Sketcher.Constraint("DistanceY", -1, 1, 0, 3, Q("120.5 mm")),
])
pocket21 = body.newObject("PartDesign::Pocket", "Pocket020")
pocket21.Profile = sketch22
pocket21.Type = "UpToFirst"
pocket21.Reversed = True

sketch23 = body.newObject("Sketcher::SketchObject", "Sketch022")
sketch23.AttachmentSupport = (doc.getObject("XZ_Plane"), [""])
sketch23.MapMode = "FlatFace"
sketch23.AttachmentOffset = App.Placement(V(0, 0, -5.5), App.Rotation())
sketch23.addGeometry(Part.Circle(V(39.5, -5, 0), V(0, 0, 1), 1.7), False)
sketch23.addConstraint([
    Sketcher.Constraint("Diameter", 0, Q("3.4 mm")),
    Sketcher.Constraint("DistanceY", 0, 3, -1, 1, Q("5 mm")),
    Sketcher.Constraint("DistanceX", -1, 1, 0, 3, Q("39.5 mm")),
])
pocket22 = body.newObject("PartDesign::Pocket", "Pocket021")
pocket22.Profile = sketch23
pocket22.Type = "UpToFirst"
pocket22.Reversed = True

sketch24 = body.newObject("Sketcher::SketchObject", "Sketch023")
sketch24.AttachmentSupport = (doc.getObject("XZ_Plane"), [""])
sketch24.MapMode = "FlatFace"
sketch24.AttachmentOffset = App.Placement(V(0, 0, -5.5), App.Rotation())
sketch24.addGeometry(Part.Circle(V(39.5, 100, 0), V(0, 0, 1), 1.7), False)
sketch24.addConstraint([
    Sketcher.Constraint("Diameter", 0, Q("3.4 mm")),
    Sketcher.Constraint("DistanceY", -1, 1, 0, 3, Q("100 mm")),
    Sketcher.Constraint("DistanceX", -1, 1, 0, 3, Q("39.5 mm")),
])
pocket23 = body.newObject("PartDesign::Pocket", "Pocket022")
pocket23.Profile = sketch24
pocket23.Type = "UpToFirst"
pocket23.Reversed = True

sketch25 = body.newObject("Sketcher::SketchObject", "Sketch024")
sketch25.AttachmentSupport = (doc.getObject("XZ_Plane"), [""])
sketch25.MapMode = "FlatFace"
sketch25.AttachmentOffset = App.Placement(V(0, 0, -5.5), App.Rotation())
sketch25.addGeometry(Part.Circle(V(-39.5, 100, 0), V(0, 0, 1), 1.7), False)
sketch25.addConstraint([
    Sketcher.Constraint("Diameter", 0, Q("3.4 mm")),
    Sketcher.Constraint("DistanceY", -1, 1, 0, 3, Q("100 mm")),
    Sketcher.Constraint("DistanceX", 0, 3, -1, 1, Q("39.5 mm")),
])
pocket24 = body.newObject("PartDesign::Pocket", "Pocket023")
pocket24.Profile = sketch25
pocket24.Type = "UpToFirst"
pocket24.Reversed = True

sketch26 = body.newObject("Sketcher::SketchObject", "Sketch025")
sketch26.AttachmentSupport = (doc.getObject("XZ_Plane"), [""])
sketch26.MapMode = "FlatFace"
sketch26.AttachmentOffset = App.Placement(V(0, 0, -5.5), App.Rotation())
sketch26.addGeometry(Part.Circle(V(-39.5, -5, 0), V(0, 0, 1), 1.7), False)
sketch26.addConstraint([
    Sketcher.Constraint("Diameter", 0, Q("3.4 mm")),
    Sketcher.Constraint("DistanceY", 0, 3, -1, 1, Q("5 mm")),
    Sketcher.Constraint("DistanceX", 0, 3, -1, 1, Q("39.5 mm")),
])
pocket25 = body.newObject("PartDesign::Pocket", "Pocket024")
pocket25.Profile = sketch26
pocket25.Type = "UpToFirst"
pocket25.Reversed = True

sketch27 = body.newObject("Sketcher::SketchObject", "Sketch026")
sketch27.AttachmentSupport = (doc.getObject("XZ_Plane"), [""])
sketch27.MapMode = "FlatFace"
sketch27.AttachmentOffset = App.Placement(V(0, 0, -5.5), App.Rotation())
sketch27.addGeometry(Part.Circle(V(-15, -60.5, 0), V(0, 0, 1), 1.8), False)
sketch27.addConstraint([
    Sketcher.Constraint("Diameter", 0, Q("3.5 mm")),
    Sketcher.Constraint("DistanceX", 0, 3, -1, 1, Q("15 mm")),
    Sketcher.Constraint("DistanceY", 0, 3, -1, 1, Q("60.5 mm")),
])
pocket26 = body.newObject("PartDesign::Pocket", "Pocket025")
pocket26.Profile = sketch27
pocket26.Type = "UpToFirst"
pocket26.Reversed = True

sketch28 = body.newObject("Sketcher::SketchObject", "Sketch027")
sketch28.AttachmentSupport = (doc.getObject("XZ_Plane"), [""])
sketch28.MapMode = "FlatFace"
sketch28.AttachmentOffset = App.Placement(V(0, 0, -5.5), App.Rotation())
sketch28.addGeometry(Part.Circle(V(15, -60.5, 0), V(0, 0, 1), 1.8), False)
sketch28.addConstraint([
    Sketcher.Constraint("Diameter", 0, Q("3.5 mm")),
    Sketcher.Constraint("DistanceX", -1, 1, 0, 3, Q("15 mm")),
    Sketcher.Constraint("DistanceY", 0, 3, -1, 1, Q("60.5 mm")),
])
pocket27 = body.newObject("PartDesign::Pocket", "Pocket026")
pocket27.Profile = sketch28
pocket27.Type = "UpToFirst"
pocket27.Reversed = True

sketch29 = body.newObject("Sketcher::SketchObject", "Sketch028")
sketch29.AttachmentSupport = (doc.getObject("XZ_Plane"), [""])
sketch29.MapMode = "FlatFace"
sketch29.AttachmentOffset = App.Placement(V(0, 0, -5.5), App.Rotation())
sketch29.addGeometry([
    Part.Circle(V(-15, -60.5, 0), V(0, 0, 1), 3),
    Part.Circle(V(15, -60.5, 0), V(0, 0, 1), 3),
], False)
sketch29.addConstraint([
    Sketcher.Constraint("Equal", 0, 1),
    Sketcher.Constraint("Symmetric", 0, 3, 1, 3, -2),
    Sketcher.Constraint("Diameter", 0, Q("6 mm")),
    Sketcher.Constraint("DistanceX", 0, 3, -1, 1, Q("15 mm")),
    Sketcher.Constraint("DistanceY", 0, 3, -1, 1, Q("60.5 mm")),
])
pocket28 = body.newObject("PartDesign::Pocket", "Pocket027")
pocket28.Profile = sketch29
pocket28.Length = 3.7
pocket28.Reversed = True

doc.recompute()
